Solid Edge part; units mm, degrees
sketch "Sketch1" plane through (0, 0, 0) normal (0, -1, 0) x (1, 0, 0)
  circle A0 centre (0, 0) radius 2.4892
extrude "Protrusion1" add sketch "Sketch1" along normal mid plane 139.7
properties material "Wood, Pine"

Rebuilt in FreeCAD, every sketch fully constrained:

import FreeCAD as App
import Part
import Sketcher

V = App.Vector
Q = App.Units.Quantity

doc = App.newDocument("Part")
params = doc.addObject("Spreadsheet::Sheet", "Params")
for row, (alias, value) in enumerate([
    ("sketch1_diameter", "0.196 in"),
    ("pad1_length", "5.5 in"),
], start=1):
    params.set(f"A{row}", alias)
    params.set(f"B{row}", "=" + value)
    params.setAlias(f"B{row}", alias)

body = doc.addObject("PartDesign::Body", "Body")

# Sketch on XZ plane
sketch1 = doc.addObject("Sketcher::SketchObject", "Sketch")
body.addObject(sketch1)
sketch1.AttachmentSupport = (doc.XZ_Plane, [""])
sketch1.MapMode = "FlatFace"
sketch1.addGeometry(Part.Circle(V(0, 0, 0), V(0, 0, 1), 2.5), False)
sketch1.addConstraint(Sketcher.Constraint("Coincident", 0, 3, -1, 1))
sketch1.addConstraint(Sketcher.Constraint("Diameter", 0, Q("0.196 in")))
sketch1.setExpression("Constraints[1]", "Params.sketch1_diameter")
pad1 = doc.addObject("PartDesign::Pad", "Pad")
body.addObject(pad1)
pad1.Profile = sketch1
pad1.setExpression("Length", "Params.pad1_length")
pad1.Midplane = True

doc.recompute()
